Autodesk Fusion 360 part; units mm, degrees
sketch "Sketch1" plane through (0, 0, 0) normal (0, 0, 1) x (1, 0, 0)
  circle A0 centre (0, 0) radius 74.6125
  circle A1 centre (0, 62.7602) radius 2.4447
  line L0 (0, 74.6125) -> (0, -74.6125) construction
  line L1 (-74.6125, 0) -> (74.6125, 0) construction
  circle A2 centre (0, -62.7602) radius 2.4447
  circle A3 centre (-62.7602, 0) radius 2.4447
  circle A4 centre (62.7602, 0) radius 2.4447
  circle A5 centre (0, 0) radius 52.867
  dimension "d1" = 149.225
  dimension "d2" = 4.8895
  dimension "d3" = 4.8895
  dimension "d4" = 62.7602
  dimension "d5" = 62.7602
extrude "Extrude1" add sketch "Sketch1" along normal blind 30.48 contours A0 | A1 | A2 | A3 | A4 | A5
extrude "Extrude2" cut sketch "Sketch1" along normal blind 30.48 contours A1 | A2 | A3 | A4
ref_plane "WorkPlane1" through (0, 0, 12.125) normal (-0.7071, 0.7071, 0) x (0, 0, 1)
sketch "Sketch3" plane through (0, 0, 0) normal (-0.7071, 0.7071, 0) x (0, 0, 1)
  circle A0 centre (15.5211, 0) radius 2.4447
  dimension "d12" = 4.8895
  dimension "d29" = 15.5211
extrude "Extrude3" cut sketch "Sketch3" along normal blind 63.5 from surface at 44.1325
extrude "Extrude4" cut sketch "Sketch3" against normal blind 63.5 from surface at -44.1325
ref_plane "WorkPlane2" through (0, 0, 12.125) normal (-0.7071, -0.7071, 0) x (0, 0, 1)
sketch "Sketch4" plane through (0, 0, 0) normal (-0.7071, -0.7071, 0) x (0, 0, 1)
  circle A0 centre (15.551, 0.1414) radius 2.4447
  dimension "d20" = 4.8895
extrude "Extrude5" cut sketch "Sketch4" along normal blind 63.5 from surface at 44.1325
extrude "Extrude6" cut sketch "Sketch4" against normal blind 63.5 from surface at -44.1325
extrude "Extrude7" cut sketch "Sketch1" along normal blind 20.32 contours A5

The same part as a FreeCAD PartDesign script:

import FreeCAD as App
import Part
import Sketcher

V = App.Vector
Q = App.Units.Quantity

doc = App.newDocument("Part")
body = doc.addObject("PartDesign::Body", "Body")

# Sketch on XY plane
sketch1 = doc.addObject("Sketcher::SketchObject", "Sketch")
body.addObject(sketch1)
sketch1.AttachmentSupport = (doc.XY_Plane, [""])
sketch1.MapMode = "FlatFace"
sketch1.addGeometry(Part.Circle(V(0, 0, 0), V(0, 0, 1), 74.6125), False)
sketch1.addConstraint(Sketcher.Constraint("Coincident", 0, 3, -1, 1))
sketch1.addConstraint(Sketcher.Constraint("Diameter", 0, Q("5.875 in")))
pad1 = doc.addObject("PartDesign::Pad", "Pad")
body.addObject(pad1)
pad1.Profile = sketch1
pad1.Length = Q("1.2 in")

# Sketch on XY plane
sketch2 = doc.addObject("Sketcher::SketchObject", "Sketch001")
body.addObject(sketch2)
sketch2.AttachmentSupport = (doc.XY_Plane, [""])
sketch2.MapMode = "FlatFace"
sketch2.addGeometry(Part.Circle(V(0, 62.7602, 0), V(0, 0, 1), 2.4447), False)
sketch2.addGeometry(Part.Circle(V(0, -62.7602, 0), V(0, 0, 1), 2.4447), False)
sketch2.addGeometry(Part.Circle(V(-62.7602, 0, 0), V(0, 0, 1), 2.4447), False)
sketch2.addGeometry(Part.Circle(V(62.7602, 0, 0), V(0, 0, 1), 2.4447), False)
sketch2.addConstraint(Sketcher.Constraint("Equal", 0, 1))
sketch2.addConstraint(Sketcher.Constraint("Equal", 1, 2))
sketch2.addConstraint(Sketcher.Constraint("Equal", 2, 3))
sketch2.addConstraint(Sketcher.Constraint("Symmetric", 0, 3, 1, 3, -1, 1))
sketch2.addConstraint(Sketcher.Constraint("Symmetric", 2, 3, 3, 3, -1, 1))
sketch2.addConstraint(Sketcher.Constraint("PointOnObject", 0, 3, -2))
sketch2.addConstraint(Sketcher.Constraint("PointOnObject", 2, 3, -1))
sketch2.addConstraint(Sketcher.Constraint("Diameter", 0, Q("0.1925 in")))
sketch2.addConstraint(Sketcher.Constraint("DistanceY", -1, 1, 0, 3, Q("62.7602 mm")))
sketch2.addConstraint(Sketcher.Constraint("DistanceX", 2, 3, -1, 1, Q("62.7602 mm")))
pocket1 = doc.addObject("PartDesign::Pocket", "Pocket")
body.addObject(pocket1)
pocket1.Profile = sketch2
pocket1.Length = Q("1.2 in")
pocket1.Reversed = True

# Sketch on an angled plane
sketch3 = doc.addObject("Sketcher::SketchObject", "Sketch002")
body.addObject(sketch3)
sketch3.Placement = App.Placement(V(-31.20639, 31.20639, 0), App.Rotation(V(0, 0, 1), V(0.707106781, 0.707106781, 0), V(-0.707106781, 0.707106781, 0), "ZXY"))
sketch3.addGeometry(Part.Circle(V(15.5211, 0, 0), V(0, 0, 1), 2.4447), False)
sketch3.addConstraint(Sketcher.Constraint("PointOnObject", 0, 3, -1))
sketch3.addConstraint(Sketcher.Constraint("Diameter", 0, Q("0.1925 in")))
sketch3.addConstraint(Sketcher.Constraint("DistanceX", -1, 1, 0, 3, Q("15.521 mm")))
pocket2 = doc.addObject("PartDesign::Pocket", "Pocket001")
body.addObject(pocket2)
pocket2.Profile = sketch3
pocket2.Length = Q("2.5 in")
pocket2.Reversed = True

# Sketch on an angled plane
sketch4 = doc.addObject("Sketcher::SketchObject", "Sketch003")
body.addObject(sketch4)
sketch4.Placement = App.Placement(V(31.20639, -31.20639, 0), App.Rotation(V(0, 0, 1), V(0.707106781, 0.707106781, 0), V(-0.707106781, 0.707106781, 0), "ZXY"))
sketch4.addGeometry(Part.Circle(V(15.5211, 0, 0), V(0, 0, 1), 2.4447), False)
sketch4.addConstraint(Sketcher.Constraint("PointOnObject", 0, 3, -1))
sketch4.addConstraint(Sketcher.Constraint("Diameter", 0, Q("0.1925 in")))
sketch4.addConstraint(Sketcher.Constraint("DistanceX", -1, 1, 0, 3, Q("15.521 mm")))
pocket3 = doc.addObject("PartDesign::Pocket", "Pocket002")
body.addObject(pocket3)
pocket3.Profile = sketch4
pocket3.Length = Q("2.5 in")

# Sketch on an angled plane
sketch5 = doc.addObject("Sketcher::SketchObject", "Sketch004")
body.addObject(sketch5)
sketch5.Placement = App.Placement(V(-31.20639, -31.20639, 0), App.Rotation(V(0, 0, 1), V(-0.707106781, 0.707106781, 0), V(-0.707106781, -0.707106781, 0), "ZXY"))
sketch5.addGeometry(Part.Circle(V(15.551, 0.1414, 0), V(0, 0, 1), 2.4447), False)
sketch5.addConstraint(Sketcher.Constraint("Diameter", 0, Q("0.1925 in")))
sketch5.addConstraint(Sketcher.Constraint("DistanceX", -1, 1, 0, 3, Q("15.551 mm")))
sketch5.addConstraint(Sketcher.Constraint("DistanceY", -1, 1, 0, 3, Q("0.1414 mm")))
pocket4 = doc.addObject("PartDesign::Pocket", "Pocket003")
body.addObject(pocket4)
pocket4.Profile = sketch5
pocket4.Length = Q("2.5 in")
pocket4.Reversed = True

# Sketch on an angled plane
sketch6 = doc.addObject("Sketcher::SketchObject", "Sketch005")
body.addObject(sketch6)
sketch6.Placement = App.Placement(V(31.20639, 31.20639, 0), App.Rotation(V(0, 0, 1), V(-0.707106781, 0.707106781, 0), V(-0.707106781, -0.707106781, 0), "ZXY"))
sketch6.addGeometry(Part.Circle(V(15.551, 0.1414, 0), V(0, 0, 1), 2.4447), False)
sketch6.addConstraint(Sketcher.Constraint("Diameter", 0, Q("0.1925 in")))
sketch6.addConstraint(Sketcher.Constraint("DistanceX", -1, 1, 0, 3, Q("15.551 mm")))
sketch6.addConstraint(Sketcher.Constraint("DistanceY", -1, 1, 0, 3, Q("0.1414 mm")))
pocket5 = doc.addObject("PartDesign::Pocket", "Pocket004")
body.addObject(pocket5)
pocket5.Profile = sketch6
pocket5.Length = Q("2.5 in")

# Sketch on XY plane
sketch7 = doc.addObject("Sketcher::SketchObject", "Sketch006")
body.addObject(sketch7)
sketch7.AttachmentSupport = (doc.XY_Plane, [""])
sketch7.MapMode = "FlatFace"
sketch7.addGeometry(Part.Circle(V(0, 0, 0), V(0, 0, 1), 52.867), False)
sketch7.addConstraint(Sketcher.Constraint("Coincident", 0, 3, -1, 1))
sketch7.addConstraint(Sketcher.Constraint("Diameter", 0, Q("105.734 mm")))
pocket6 = doc.addObject("PartDesign::Pocket", "Pocket005")
body.addObject(pocket6)
pocket6.Profile = sketch7
pocket6.Length = Q("0.8 in")
pocket6.Reversed = True

doc.recompute()
